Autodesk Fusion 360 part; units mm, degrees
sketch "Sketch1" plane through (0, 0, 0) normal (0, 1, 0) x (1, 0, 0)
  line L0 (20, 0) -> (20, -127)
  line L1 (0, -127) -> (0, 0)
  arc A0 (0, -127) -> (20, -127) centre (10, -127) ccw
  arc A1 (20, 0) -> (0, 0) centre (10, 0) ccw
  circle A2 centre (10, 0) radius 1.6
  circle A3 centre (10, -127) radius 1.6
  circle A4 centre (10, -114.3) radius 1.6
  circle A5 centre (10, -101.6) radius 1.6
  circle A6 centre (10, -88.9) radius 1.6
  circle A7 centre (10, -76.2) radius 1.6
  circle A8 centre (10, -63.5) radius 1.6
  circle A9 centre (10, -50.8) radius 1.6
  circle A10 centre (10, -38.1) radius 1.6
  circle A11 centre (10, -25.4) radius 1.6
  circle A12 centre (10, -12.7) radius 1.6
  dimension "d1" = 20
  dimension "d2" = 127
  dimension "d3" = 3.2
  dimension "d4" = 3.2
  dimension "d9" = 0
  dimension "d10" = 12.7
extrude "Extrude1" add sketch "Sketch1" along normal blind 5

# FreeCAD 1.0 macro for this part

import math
import FreeCAD as App
import Part
import Sketcher

V = App.Vector

doc = App.newDocument("Part")
body = doc.addObject("PartDesign::Body", "Body")

sketch1 = body.newObject("Sketcher::SketchObject", "Sketch")
sketch1.AttachmentSupport = (doc.getObject("XZ_Plane"), [""])
sketch1.MapMode = "FlatFace"
sketch1.addGeometry([
    Part.LineSegment(V(20, 127, 0), V(20, 0, 0)),
    Part.ArcOfCircle(Part.Circle(V(10, 0, 0), V(0, 0, 1), 10), math.radians(180), math.radians(360)),
    Part.LineSegment(V(0, 0, 0), V(0, 127, 0)),
    Part.ArcOfCircle(Part.Circle(V(10, 127, 0), V(0, 0, 1), 10), math.radians(0), math.radians(180)),
    Part.Circle(V(10, 127, 0), V(0, 0, 1), 1.6),
    Part.Circle(V(10, 114.3, 0), V(0, 0, 1), 1.6),
    Part.Circle(V(10, 101.6, 0), V(0, 0, 1), 1.6),
    Part.Circle(V(10, 88.9, 0), V(0, 0, 1), 1.6),
    Part.Circle(V(10, 76.2, 0), V(0, 0, 1), 1.6),
    Part.Circle(V(10, 63.5, 0), V(0, 0, 1), 1.6),
    Part.Circle(V(10, 50.8, 0), V(0, 0, 1), 1.6),
    Part.Circle(V(10, 38.1, 0), V(0, 0, 1), 1.6),
    Part.Circle(V(10, 25.4, 0), V(0, 0, 1), 1.6),
    Part.Circle(V(10, 12.7, 0), V(0, 0, 1), 1.6),
    Part.Circle(V(10, 0, 0), V(0, 0, 1), 1.6),
], False)
sketch1.addConstraint([
    Sketcher.Constraint("Tangent", 0, 2, 1, 2),
    Sketcher.Constraint("Tangent", 1, 1, 2, 1),
    Sketcher.Constraint("Tangent", 2, 2, 3, 2),
    Sketcher.Constraint("Tangent", 3, 1, 0, 1),
    Sketcher.Constraint("Vertical", 0),
    Sketcher.Constraint("Vertical", 2),
    Sketcher.Constraint("Coincident", 1, 1, -1, 1),
    Sketcher.Constraint("Coincident", 4, 3, 3, 3),
    Sketcher.Constraint("Coincident", 14, 3, 1, 3),
    Sketcher.Constraint("Equal", 4, 5),
    Sketcher.Constraint("Equal", 5, 6),
    Sketcher.Constraint("Equal", 6, 7),
    Sketcher.Constraint("Equal", 7, 8),
    Sketcher.Constraint("Equal", 8, 9),
    Sketcher.Constraint("Equal", 9, 10),
    Sketcher.Constraint("Equal", 10, 11),
    Sketcher.Constraint("Equal", 11, 12),
    Sketcher.Constraint("Equal", 12, 13),
    Sketcher.Constraint("Equal", 13, 14),
    Sketcher.Constraint("Vertical", 4, 3, 5, 3),
    Sketcher.Constraint("Vertical", 5, 3, 6, 3),
    Sketcher.Constraint("Vertical", 6, 3, 7, 3),
    Sketcher.Constraint("Vertical", 7, 3, 8, 3),
    Sketcher.Constraint("Vertical", 8, 3, 9, 3),
    Sketcher.Constraint("Vertical", 9, 3, 10, 3),
    Sketcher.Constraint("Vertical", 10, 3, 11, 3),
    Sketcher.Constraint("Vertical", 11, 3, 12, 3),
    Sketcher.Constraint("Vertical", 12, 3, 13, 3),
    Sketcher.Constraint("Radius", 1, 10.0),
    Sketcher.Constraint("Diameter", 4, 3.2),
    Sketcher.Constraint("DistanceY", 0, 2, 0, 1, 127.0),
    Sketcher.Constraint("DistanceY", -1, 1, 13, 3, 12.7),
    Sketcher.Constraint("DistanceY", 5, 3, 3, 3, 12.7),
    Sketcher.Constraint("DistanceY", 6, 3, 5, 3, 12.7),
    Sketcher.Constraint("DistanceY", 7, 3, 6, 3, 12.7),
    Sketcher.Constraint("DistanceY", 8, 3, 7, 3, 12.7),
    Sketcher.Constraint("DistanceY", 9, 3, 8, 3, 12.7),
    Sketcher.Constraint("DistanceY", 10, 3, 9, 3, 12.7),
    Sketcher.Constraint("DistanceY", 11, 3, 10, 3, 12.7),
    Sketcher.Constraint("DistanceY", 12, 3, 11, 3, 12.7),
])
pad1 = body.newObject("PartDesign::Pad", "Pad")
pad1.Profile = sketch1
pad1.Length = 5
pad1.Reversed = True

doc.recompute()
